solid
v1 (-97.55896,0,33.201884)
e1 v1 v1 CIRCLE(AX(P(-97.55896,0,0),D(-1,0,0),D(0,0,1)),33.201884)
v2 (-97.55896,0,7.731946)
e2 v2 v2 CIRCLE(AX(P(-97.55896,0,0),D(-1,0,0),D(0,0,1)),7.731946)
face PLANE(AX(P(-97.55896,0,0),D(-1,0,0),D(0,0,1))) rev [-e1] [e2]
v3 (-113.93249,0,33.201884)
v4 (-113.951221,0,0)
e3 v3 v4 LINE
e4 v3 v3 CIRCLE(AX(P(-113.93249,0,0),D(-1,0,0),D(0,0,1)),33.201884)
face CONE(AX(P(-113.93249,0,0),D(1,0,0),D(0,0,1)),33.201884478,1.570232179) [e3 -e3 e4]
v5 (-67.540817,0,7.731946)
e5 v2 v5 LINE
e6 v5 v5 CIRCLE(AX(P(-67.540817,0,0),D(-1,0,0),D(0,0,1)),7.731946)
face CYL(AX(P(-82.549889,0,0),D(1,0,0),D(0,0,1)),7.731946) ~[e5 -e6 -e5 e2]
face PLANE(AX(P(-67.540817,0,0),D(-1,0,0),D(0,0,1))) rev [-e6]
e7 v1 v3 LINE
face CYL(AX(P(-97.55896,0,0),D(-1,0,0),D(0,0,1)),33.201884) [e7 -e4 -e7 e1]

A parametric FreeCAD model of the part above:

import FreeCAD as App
import Part
import Sketcher

V = App.Vector
Q = App.Units.Quantity


def add_polygon(sketch, points):
    """Adds a closed chain of lines whose ends are joined by coincident constraints."""
    first, n = sketch.GeometryCount, len(points)
    for a, b in zip(points, points[1:] + points[:1]):
        sketch.addGeometry(Part.LineSegment(App.Vector(*a, 0), App.Vector(*b, 0)), False)
    for i in range(n):
        sketch.addConstraint(Sketcher.Constraint("Coincident", first + i, 2, first + (i + 1) % n, 1))

doc = App.newDocument("Part")
body = doc.addObject("PartDesign::Body", "Body")

# Sketch on XZ plane
sketch1 = body.newObject("Sketcher::SketchObject", "Sketch")
sketch1.AttachmentSupport = (doc.getObject("XZ_Plane"), [""])
sketch1.MapMode = "FlatFace"
add_polygon(sketch1, [(-97.55896, 33.201884), (-113.93249, 33.201884), (-113.951221, 0), (-67.540817, 0), (-67.540817, 7.731946), (-97.55896, 7.731946)])  # lines 0-5
sketch1.addConstraint([
    Sketcher.Constraint("Horizontal", 0),
    Sketcher.Constraint("Horizontal", 2),
    Sketcher.Constraint("Vertical", 3),
    Sketcher.Constraint("Horizontal", 4),
    Sketcher.Constraint("Vertical", 5),
    Sketcher.Constraint("PointOnObject", 1, 2, -1),
    Sketcher.Constraint("DistanceX", 0, 2, 0, 1, Q("16.37353 mm")),
    Sketcher.Constraint("DistanceY", 5, 1, 5, 2, Q("25.469939 mm")),
    Sketcher.Constraint("Distance", 1, Q("33.20189 mm")),
    Sketcher.Constraint("DistanceX", 2, 1, 2, 2, Q("46.410404 mm")),
    Sketcher.Constraint("DistanceX", 4, 2, 4, 1, Q("30.018143 mm")),
    Sketcher.Constraint("DistanceX", 0, 2, -1, 1, Q("113.93249 mm")),
])
revolution = body.newObject("PartDesign::Revolution", "Revolution")
revolution.Profile = sketch1
revolution.ReferenceAxis = (sketch1, ["H_Axis"])
revolution.Angle = 360

doc.recompute()
